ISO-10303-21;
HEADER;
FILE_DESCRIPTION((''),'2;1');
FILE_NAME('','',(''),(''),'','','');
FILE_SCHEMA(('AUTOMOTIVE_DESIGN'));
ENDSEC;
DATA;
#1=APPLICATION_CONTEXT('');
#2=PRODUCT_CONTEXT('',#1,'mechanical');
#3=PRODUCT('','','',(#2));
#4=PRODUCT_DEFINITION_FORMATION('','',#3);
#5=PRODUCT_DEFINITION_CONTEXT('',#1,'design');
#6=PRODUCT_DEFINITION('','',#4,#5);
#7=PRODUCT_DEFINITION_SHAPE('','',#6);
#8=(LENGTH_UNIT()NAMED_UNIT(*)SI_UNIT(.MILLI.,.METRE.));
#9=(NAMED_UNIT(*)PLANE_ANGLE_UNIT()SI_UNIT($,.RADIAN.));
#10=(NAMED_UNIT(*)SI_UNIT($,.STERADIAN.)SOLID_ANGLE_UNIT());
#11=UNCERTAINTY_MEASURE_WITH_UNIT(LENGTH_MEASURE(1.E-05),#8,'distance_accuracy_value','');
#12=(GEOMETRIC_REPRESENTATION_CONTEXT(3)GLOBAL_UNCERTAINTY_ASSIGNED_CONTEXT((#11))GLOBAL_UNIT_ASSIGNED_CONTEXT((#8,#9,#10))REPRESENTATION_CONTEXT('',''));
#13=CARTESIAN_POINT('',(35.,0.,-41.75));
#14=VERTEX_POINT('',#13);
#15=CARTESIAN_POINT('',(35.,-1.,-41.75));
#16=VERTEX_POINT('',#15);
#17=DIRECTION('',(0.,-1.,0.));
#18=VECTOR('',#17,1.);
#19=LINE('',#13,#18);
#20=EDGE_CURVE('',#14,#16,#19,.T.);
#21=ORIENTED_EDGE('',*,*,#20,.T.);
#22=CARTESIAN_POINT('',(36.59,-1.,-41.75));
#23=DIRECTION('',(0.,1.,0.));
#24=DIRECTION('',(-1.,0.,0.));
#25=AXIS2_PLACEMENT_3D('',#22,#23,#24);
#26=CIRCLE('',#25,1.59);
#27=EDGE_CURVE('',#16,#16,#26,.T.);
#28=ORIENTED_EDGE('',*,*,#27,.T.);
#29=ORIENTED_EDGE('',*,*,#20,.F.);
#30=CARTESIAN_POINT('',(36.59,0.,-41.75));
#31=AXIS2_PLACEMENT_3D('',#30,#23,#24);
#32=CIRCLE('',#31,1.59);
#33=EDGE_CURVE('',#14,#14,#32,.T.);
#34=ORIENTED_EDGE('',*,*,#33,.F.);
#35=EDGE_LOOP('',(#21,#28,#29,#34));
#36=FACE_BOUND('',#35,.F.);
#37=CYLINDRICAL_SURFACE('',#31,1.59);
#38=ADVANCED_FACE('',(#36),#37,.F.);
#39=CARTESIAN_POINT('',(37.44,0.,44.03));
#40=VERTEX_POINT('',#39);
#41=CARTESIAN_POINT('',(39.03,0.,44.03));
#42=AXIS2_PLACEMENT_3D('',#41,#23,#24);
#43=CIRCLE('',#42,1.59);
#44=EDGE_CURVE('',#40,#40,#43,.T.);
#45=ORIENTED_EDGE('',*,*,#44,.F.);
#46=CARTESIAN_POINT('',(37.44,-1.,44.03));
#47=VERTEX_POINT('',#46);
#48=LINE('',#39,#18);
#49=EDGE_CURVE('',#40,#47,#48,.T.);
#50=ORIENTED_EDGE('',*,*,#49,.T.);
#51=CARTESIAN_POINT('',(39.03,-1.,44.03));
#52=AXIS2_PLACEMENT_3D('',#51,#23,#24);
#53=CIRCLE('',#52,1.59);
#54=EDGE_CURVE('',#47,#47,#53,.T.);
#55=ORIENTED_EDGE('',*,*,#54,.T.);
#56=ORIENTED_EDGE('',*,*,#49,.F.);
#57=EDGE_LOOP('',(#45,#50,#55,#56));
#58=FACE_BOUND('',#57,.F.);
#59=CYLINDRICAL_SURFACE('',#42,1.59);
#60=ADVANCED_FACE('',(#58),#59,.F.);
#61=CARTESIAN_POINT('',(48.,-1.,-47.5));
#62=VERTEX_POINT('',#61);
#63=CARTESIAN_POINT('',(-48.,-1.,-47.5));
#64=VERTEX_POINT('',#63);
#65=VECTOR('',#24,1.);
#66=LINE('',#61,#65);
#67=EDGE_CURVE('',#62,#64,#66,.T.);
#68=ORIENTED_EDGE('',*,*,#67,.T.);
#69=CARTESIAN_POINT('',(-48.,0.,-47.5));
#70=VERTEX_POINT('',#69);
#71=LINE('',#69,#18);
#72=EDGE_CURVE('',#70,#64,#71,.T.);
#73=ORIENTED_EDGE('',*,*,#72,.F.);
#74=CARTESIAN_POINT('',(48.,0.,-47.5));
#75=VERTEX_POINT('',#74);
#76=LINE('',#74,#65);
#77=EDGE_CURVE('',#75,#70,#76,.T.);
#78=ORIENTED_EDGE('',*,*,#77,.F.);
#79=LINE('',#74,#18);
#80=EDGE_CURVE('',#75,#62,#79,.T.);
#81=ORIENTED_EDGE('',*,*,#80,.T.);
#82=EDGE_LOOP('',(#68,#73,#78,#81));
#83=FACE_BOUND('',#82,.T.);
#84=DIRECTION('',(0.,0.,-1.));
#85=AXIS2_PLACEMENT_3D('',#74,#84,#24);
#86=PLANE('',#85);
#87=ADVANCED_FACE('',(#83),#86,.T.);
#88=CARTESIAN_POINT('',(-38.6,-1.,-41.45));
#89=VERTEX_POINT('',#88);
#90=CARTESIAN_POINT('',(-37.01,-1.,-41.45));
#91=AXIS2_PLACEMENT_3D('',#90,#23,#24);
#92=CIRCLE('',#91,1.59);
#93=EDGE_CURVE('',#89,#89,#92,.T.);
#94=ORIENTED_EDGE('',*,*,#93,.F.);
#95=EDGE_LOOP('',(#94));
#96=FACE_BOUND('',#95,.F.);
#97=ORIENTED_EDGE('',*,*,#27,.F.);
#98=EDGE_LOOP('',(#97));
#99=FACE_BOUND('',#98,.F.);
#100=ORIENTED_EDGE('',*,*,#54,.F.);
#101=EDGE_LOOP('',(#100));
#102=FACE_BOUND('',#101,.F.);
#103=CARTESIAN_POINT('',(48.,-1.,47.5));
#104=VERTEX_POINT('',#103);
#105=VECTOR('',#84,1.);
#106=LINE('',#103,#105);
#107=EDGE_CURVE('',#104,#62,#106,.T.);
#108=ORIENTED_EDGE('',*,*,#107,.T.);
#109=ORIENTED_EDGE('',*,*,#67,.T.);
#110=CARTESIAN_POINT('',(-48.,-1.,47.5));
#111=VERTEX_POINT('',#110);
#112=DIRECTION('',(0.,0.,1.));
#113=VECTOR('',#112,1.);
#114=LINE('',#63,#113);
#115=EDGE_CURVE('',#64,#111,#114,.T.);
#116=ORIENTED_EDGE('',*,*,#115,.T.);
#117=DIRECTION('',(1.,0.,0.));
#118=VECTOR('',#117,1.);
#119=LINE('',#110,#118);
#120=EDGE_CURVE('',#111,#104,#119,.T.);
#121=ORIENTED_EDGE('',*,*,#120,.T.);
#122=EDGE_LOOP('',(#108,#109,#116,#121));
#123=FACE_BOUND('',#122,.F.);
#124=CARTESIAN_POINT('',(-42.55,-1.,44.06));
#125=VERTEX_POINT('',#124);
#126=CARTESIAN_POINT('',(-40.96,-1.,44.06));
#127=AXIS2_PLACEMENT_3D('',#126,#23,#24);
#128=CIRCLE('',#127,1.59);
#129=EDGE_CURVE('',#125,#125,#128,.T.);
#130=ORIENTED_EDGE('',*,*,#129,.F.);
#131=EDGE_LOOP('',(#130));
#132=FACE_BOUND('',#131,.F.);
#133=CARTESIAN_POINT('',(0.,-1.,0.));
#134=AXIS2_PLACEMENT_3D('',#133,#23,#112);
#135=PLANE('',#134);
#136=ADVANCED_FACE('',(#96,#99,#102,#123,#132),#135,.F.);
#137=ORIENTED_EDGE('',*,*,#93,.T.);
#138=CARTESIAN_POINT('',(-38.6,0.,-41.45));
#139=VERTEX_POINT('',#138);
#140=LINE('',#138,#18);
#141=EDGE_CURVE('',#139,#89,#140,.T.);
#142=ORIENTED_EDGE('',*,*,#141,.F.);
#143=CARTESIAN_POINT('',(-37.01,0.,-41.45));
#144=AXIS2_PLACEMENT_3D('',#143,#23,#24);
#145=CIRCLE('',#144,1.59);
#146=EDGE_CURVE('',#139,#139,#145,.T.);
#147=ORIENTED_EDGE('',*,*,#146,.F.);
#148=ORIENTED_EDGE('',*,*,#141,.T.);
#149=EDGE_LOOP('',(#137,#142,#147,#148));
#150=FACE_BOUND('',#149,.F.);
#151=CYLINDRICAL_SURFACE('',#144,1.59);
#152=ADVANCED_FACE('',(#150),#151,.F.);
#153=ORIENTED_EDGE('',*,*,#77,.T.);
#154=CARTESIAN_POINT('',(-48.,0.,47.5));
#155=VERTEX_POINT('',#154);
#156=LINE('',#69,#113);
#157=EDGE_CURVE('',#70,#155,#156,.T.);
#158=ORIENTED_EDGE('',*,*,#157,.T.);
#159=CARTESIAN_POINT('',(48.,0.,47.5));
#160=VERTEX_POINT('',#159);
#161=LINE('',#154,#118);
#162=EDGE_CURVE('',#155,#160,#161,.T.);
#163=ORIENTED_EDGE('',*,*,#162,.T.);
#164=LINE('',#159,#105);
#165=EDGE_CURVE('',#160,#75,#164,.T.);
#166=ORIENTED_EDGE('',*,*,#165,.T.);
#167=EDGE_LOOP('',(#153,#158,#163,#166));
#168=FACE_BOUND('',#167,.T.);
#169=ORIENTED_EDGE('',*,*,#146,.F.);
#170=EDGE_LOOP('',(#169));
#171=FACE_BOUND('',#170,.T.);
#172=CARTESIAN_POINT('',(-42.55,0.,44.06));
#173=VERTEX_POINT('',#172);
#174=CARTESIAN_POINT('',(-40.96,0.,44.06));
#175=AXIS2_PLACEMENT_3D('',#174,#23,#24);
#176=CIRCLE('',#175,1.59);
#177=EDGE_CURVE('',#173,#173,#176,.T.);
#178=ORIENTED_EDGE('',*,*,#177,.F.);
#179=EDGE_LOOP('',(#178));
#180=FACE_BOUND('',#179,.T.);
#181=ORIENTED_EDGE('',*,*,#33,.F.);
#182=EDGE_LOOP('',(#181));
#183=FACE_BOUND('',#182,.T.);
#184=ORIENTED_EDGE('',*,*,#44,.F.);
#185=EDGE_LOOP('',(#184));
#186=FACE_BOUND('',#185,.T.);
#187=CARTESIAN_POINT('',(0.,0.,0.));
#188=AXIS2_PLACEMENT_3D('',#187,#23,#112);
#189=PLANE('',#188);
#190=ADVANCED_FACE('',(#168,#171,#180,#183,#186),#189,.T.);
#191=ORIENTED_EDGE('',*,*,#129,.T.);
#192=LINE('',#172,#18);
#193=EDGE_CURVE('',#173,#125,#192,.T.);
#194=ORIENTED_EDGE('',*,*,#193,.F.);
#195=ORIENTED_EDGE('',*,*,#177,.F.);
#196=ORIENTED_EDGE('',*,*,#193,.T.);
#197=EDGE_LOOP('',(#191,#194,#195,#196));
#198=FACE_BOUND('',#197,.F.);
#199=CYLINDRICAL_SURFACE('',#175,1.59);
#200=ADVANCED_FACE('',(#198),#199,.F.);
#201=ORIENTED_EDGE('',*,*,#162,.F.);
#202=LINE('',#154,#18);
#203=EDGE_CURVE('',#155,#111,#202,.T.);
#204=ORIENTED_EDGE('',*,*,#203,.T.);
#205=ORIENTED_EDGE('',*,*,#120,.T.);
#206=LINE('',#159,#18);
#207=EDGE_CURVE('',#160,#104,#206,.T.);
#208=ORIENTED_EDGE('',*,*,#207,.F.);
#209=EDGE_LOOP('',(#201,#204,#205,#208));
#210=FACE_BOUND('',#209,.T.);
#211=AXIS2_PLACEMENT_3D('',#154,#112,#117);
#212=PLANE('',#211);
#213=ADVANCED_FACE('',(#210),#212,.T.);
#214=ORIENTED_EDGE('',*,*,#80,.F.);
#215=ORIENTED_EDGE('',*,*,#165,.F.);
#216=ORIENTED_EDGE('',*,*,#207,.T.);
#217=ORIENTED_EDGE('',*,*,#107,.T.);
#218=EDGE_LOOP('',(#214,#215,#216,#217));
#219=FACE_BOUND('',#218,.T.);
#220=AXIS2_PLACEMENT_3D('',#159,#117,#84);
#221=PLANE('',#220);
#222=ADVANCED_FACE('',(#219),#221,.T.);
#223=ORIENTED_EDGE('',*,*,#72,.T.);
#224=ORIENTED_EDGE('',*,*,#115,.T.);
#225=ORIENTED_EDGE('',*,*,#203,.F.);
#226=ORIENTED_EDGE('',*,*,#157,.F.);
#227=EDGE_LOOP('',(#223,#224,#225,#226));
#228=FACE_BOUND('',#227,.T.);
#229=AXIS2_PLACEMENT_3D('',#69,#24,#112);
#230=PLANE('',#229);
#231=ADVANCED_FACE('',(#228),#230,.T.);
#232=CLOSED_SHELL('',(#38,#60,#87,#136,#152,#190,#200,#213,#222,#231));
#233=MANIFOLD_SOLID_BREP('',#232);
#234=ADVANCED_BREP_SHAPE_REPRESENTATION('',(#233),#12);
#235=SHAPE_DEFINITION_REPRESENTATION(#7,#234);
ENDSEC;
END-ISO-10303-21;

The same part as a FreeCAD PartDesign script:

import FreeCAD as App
import Part
import Sketcher
Q = App.Units.Quantity

doc = App.newDocument("Part")
params = doc.addObject("Spreadsheet::Sheet", "Params")
for row, (alias, value) in enumerate([
    ("sketch1_width", "96 mm"),
    ("sketch1_height", "95 mm"),
    ("pad1_length", "1 mm"),
    ("sketch2_diameter", "3.18 mm"),
    ("pocket1_length", "32.4613 mm"),
], start=1):
    params.set(f"A{row}", alias)
    params.set(f"B{row}", "=" + value)
    params.setAlias(f"B{row}", alias)

body = doc.addObject("PartDesign::Body", "Body")

sketch1 = body.newObject("Sketcher::SketchObject", "Sketch")
sketch1.AttachmentSupport = (doc.getObject("XZ_Plane"), [""])
sketch1.MapMode = "FlatFace"
sketch1.addGeometry([
    Part.LineSegment(App.Vector(48, 48, 0), App.Vector(-48, 48, 0)),
    Part.LineSegment(App.Vector(-48, 48, 0), App.Vector(-48, -48, 0)),
    Part.LineSegment(App.Vector(-48, -48, 0), App.Vector(48, -48, 0)),
    Part.LineSegment(App.Vector(48, -48, 0), App.Vector(48, 48, 0)),
], False)
sketch1.addConstraint([
    Sketcher.Constraint("Coincident", 0, 2, 1, 1),
    Sketcher.Constraint("Coincident", 1, 2, 2, 1),
    Sketcher.Constraint("Coincident", 2, 2, 3, 1),
    Sketcher.Constraint("Coincident", 3, 2, 0, 1),
    Sketcher.Constraint("Horizontal", 0),
    Sketcher.Constraint("Vertical", 1),
    Sketcher.Constraint("Horizontal", 2),
    Sketcher.Constraint("Vertical", 3),
    Sketcher.Constraint("Symmetric", 0, 2, 2, 2, -1, 1),
    Sketcher.Constraint("DistanceX", 0, 2, 0, 1, Q("96 mm")),
    Sketcher.Constraint("DistanceY", 1, 2, 1, 1, Q("95 mm")),
])
sketch1.setExpression("Constraints[9]", "Params.sketch1_width")
sketch1.setExpression("Constraints[10]", "Params.sketch1_height")
pad1 = body.newObject("PartDesign::Pad", "Pad")
pad1.Profile = sketch1
pad1.setExpression("Length", "Params.pad1_length")

sketch2 = body.newObject("Sketcher::SketchObject", "Sketch001")
sketch2.AttachmentSupport = (doc.getObject("XZ_Plane"), [""])
sketch2.MapMode = "FlatFace"
sketch2.addGeometry([
    Part.Circle(App.Vector(-41, 44.1, 0), App.Vector(0, 0, 1), 1.6),
    Part.Circle(App.Vector(39, 44, 0), App.Vector(0, 0, 1), 1.6),
    Part.Circle(App.Vector(36.6, -41.8, 0), App.Vector(0, 0, 1), 1.6),
    Part.Circle(App.Vector(-37, -41.5, 0), App.Vector(0, 0, 1), 1.6),
], False)
sketch2.addConstraint([
    Sketcher.Constraint("Equal", 0, 1),
    Sketcher.Constraint("Equal", 1, 2),
    Sketcher.Constraint("Equal", 2, 3),
    Sketcher.Constraint("Diameter", 0, Q("3.18 mm")),
    Sketcher.Constraint("DistanceX", 0, 3, -1, 1, Q("40.96 mm")),
    Sketcher.Constraint("DistanceX", 3, 3, 2, 3, Q("73.6 mm")),
    Sketcher.Constraint("DistanceY", 2, 3, 3, 3, Q("0.3 mm")),
    Sketcher.Constraint("DistanceY", -1, 1, 0, 3, Q("44.06 mm")),
    Sketcher.Constraint("DistanceX", -1, 1, 1, 3, Q("39.03 mm")),
    Sketcher.Constraint("DistanceY", -1, 1, 1, 3, Q("44.03 mm")),
    Sketcher.Constraint("DistanceX", -1, 1, 2, 3, Q("36.59 mm")),
    Sketcher.Constraint("DistanceY", 2, 3, -1, 1, Q("41.75 mm")),
])
sketch2.setExpression("Constraints[3]", "Params.sketch2_diameter")
pocket1 = body.newObject("PartDesign::Pocket", "Pocket")
pocket1.Profile = sketch2
pocket1.setExpression("Length", "Params.pocket1_length")
pocket1.Reversed = True

doc.recompute()
